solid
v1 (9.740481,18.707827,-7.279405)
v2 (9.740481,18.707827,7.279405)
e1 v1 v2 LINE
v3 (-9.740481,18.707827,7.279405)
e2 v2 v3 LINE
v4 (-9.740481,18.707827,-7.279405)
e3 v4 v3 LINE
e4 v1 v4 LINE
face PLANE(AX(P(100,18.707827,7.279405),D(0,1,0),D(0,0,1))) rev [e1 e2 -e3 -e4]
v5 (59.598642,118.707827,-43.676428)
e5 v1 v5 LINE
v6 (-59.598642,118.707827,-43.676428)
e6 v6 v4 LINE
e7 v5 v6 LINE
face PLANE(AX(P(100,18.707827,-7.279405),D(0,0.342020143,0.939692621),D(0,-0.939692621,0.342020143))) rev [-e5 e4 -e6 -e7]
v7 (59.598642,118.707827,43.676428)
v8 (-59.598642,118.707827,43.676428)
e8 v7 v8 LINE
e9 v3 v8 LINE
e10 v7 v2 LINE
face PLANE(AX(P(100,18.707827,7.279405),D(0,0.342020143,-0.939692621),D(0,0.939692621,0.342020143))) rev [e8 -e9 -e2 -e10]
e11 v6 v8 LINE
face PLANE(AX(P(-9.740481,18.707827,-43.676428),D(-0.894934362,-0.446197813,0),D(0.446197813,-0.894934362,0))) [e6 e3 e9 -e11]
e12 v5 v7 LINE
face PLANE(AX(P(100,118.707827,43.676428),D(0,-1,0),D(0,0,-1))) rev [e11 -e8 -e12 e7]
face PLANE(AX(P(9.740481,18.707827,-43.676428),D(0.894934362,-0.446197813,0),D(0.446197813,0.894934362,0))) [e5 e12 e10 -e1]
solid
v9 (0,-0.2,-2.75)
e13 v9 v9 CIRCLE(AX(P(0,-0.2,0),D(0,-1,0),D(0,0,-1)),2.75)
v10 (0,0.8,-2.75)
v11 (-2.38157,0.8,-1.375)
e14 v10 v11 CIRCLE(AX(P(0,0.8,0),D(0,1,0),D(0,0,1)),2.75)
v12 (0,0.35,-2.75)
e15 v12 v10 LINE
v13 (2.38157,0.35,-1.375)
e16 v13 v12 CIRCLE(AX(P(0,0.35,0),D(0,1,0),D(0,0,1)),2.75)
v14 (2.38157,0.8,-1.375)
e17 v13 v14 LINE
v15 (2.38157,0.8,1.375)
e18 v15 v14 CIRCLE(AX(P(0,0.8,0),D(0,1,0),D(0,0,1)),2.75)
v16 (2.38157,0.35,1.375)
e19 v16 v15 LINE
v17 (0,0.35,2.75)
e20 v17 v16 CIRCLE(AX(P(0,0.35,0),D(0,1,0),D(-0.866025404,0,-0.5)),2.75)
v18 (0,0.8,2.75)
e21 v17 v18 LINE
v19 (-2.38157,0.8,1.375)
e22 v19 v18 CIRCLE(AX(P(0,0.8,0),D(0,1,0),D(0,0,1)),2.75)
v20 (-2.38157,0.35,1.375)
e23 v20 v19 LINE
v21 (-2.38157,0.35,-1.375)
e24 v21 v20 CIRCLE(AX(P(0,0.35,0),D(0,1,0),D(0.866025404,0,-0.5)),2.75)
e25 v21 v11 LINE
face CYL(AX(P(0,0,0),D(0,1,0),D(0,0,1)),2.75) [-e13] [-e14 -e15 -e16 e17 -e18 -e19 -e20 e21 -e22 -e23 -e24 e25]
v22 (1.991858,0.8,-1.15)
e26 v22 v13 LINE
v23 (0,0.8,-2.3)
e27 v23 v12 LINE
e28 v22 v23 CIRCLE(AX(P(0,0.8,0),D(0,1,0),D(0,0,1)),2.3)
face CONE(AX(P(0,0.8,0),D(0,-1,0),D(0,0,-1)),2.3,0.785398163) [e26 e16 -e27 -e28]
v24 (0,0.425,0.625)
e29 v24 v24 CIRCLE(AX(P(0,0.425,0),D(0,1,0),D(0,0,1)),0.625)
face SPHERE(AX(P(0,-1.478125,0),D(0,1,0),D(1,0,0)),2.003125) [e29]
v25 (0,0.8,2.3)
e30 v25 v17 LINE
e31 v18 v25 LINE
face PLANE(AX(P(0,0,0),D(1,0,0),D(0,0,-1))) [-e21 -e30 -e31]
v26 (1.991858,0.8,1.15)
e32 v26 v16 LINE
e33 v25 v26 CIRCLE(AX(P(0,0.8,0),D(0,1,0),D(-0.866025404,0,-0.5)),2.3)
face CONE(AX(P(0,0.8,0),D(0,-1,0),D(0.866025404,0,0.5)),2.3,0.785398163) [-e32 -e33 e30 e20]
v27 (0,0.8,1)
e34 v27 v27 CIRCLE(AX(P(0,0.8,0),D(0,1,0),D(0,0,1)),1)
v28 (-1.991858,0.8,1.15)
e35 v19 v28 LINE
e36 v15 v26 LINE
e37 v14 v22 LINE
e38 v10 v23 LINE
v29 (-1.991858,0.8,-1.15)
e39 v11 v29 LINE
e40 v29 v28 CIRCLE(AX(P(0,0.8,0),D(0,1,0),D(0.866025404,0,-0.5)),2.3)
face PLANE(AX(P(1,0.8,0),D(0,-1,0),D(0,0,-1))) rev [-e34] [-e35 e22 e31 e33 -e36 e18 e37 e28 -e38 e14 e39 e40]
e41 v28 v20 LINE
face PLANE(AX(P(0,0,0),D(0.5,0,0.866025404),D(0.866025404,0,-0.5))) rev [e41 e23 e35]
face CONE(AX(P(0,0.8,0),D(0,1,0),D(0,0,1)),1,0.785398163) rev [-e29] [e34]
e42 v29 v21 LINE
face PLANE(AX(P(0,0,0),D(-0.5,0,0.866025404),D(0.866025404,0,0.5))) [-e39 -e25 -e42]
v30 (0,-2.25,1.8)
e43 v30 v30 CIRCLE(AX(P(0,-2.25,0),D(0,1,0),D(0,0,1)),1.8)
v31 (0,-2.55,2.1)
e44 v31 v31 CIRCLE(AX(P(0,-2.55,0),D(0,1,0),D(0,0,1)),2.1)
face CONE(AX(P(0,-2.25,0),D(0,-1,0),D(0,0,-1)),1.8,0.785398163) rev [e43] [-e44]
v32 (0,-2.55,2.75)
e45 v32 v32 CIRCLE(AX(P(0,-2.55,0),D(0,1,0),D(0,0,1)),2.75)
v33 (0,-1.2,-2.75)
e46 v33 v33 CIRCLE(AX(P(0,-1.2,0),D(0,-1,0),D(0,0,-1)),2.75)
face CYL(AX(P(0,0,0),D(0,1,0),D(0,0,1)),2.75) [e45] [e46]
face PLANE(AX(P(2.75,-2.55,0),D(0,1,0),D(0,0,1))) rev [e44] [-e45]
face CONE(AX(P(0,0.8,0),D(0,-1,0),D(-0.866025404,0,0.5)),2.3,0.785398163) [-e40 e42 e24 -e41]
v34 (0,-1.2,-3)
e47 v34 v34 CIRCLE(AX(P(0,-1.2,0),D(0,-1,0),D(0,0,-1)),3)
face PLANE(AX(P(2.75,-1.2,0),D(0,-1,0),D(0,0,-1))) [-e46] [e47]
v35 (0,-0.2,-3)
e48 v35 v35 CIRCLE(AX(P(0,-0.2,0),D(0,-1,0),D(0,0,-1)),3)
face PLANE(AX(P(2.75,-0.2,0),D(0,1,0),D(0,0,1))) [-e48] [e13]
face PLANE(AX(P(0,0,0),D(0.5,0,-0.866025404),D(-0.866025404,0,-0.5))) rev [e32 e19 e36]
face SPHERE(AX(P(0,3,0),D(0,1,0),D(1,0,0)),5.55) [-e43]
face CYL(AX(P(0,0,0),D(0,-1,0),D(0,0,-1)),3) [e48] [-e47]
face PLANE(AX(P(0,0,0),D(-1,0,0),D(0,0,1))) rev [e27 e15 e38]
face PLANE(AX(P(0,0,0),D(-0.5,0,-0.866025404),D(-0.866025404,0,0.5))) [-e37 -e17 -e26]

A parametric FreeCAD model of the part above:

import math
import FreeCAD as App
import Part
import Sketcher
from FreeCAD import Vector
Q = App.Units.Quantity


def add_polygon(sketch, points):
    """Adds a closed chain of lines whose ends are joined by coincident constraints."""
    first, n = sketch.GeometryCount, len(points)
    for a, b in zip(points, points[1:] + points[:1]):
        sketch.addGeometry(Part.LineSegment(App.Vector(*a, 0), App.Vector(*b, 0)), False)
    for i in range(n):
        sketch.addConstraint(Sketcher.Constraint("Coincident", first + i, 2, first + (i + 1) % n, 1))

doc = App.newDocument("Part")
params = doc.addObject("Spreadsheet::Sheet", "Params")
for row, (alias, value) in enumerate([
    ("sketch1_radius", "5.55 mm"),
    ("sketch1_width", "1.75 mm"),
    ("sketch1_width2", "0.65 mm"),
    ("sketch1_height", "3.35 mm"),
    ("revolution_angle", "360 deg"),
    ("sketch2_height", "1 mm"),
    ("sketch2_width", "0.25 mm"),
    ("revolution2_angle", "360 deg"),
    ("sketch3_width", "0.45 mm"),
    ("groove_angle", "60 deg"),
    ("pad1_length", "200 mm"),
    ("sketch5_diameter", "10 mm"),
], start=1):
    params.set(f"A{row}", alias)
    params.set(f"B{row}", "=" + value)
    params.setAlias(f"B{row}", alias)

body = doc.addObject("PartDesign::Body", "Body")

# Sketch on XY plane
sketch1 = body.newObject("Sketcher::SketchObject", "Sketch")
sketch1.AttachmentSupport = (doc.getObject("XY_Plane"), [""])
sketch1.MapMode = "FlatFace"
sketch1.addGeometry(Part.LineSegment(Vector(2.75, 0.8, 0), Vector(1, 0.8, 0)), False)
sketch1.addGeometry(Part.LineSegment(Vector(1, 0.8, 0), Vector(0.62, 0.42, 0)), False)
sketch1.addGeometry(Part.ArcOfCircle(Part.Circle(Vector(0, -1.48, 0), Vector(0, 0, 1), 2), math.radians(71.82), math.radians(90)), False)
sketch1.addGeometry(Part.LineSegment(Vector(0, 0.53, 0), Vector(0, -2.55, 0)), False)
sketch1.addGeometry(Part.ArcOfCircle(Part.Circle(Vector(0, 3, 0), Vector(0, 0, 1), 5.55), math.radians(-90), math.radians(-71.08)), False)
sketch1.addGeometry(Part.LineSegment(Vector(1.8, -2.25, 0), Vector(2.1, -2.55, 0)), False)
sketch1.addGeometry(Part.LineSegment(Vector(2.1, -2.55, 0), Vector(2.75, -2.55, 0)), False)
sketch1.addGeometry(Part.LineSegment(Vector(2.75, -2.55, 0), Vector(2.75, 0.8, 0)), False)
sketch1.addConstraint(Sketcher.Constraint("Coincident", 0, 2, 1, 1))
sketch1.addConstraint(Sketcher.Constraint("Coincident", 1, 2, 2, 1))
sketch1.addConstraint(Sketcher.Constraint("Coincident", 2, 2, 3, 1))
sketch1.addConstraint(Sketcher.Constraint("Coincident", 3, 2, 4, 1))
sketch1.addConstraint(Sketcher.Constraint("Coincident", 4, 2, 5, 1))
sketch1.addConstraint(Sketcher.Constraint("Coincident", 5, 2, 6, 1))
sketch1.addConstraint(Sketcher.Constraint("Coincident", 6, 2, 7, 1))
sketch1.addConstraint(Sketcher.Constraint("Coincident", 7, 2, 0, 1))
sketch1.addConstraint(Sketcher.Constraint("Horizontal", 0))
sketch1.addConstraint(Sketcher.Constraint("Vertical", 3))
sketch1.addConstraint(Sketcher.Constraint("Horizontal", 6))
sketch1.addConstraint(Sketcher.Constraint("Vertical", 7))
sketch1.addConstraint(Sketcher.Constraint("PointOnObject", 2, 3, -2))
sketch1.addConstraint(Sketcher.Constraint("PointOnObject", 4, 3, -2))
sketch1.addConstraint(Sketcher.Constraint("PointOnObject", 2, 2, -2))
sketch1.addConstraint(Sketcher.Constraint("Perpendicular", 1, 5))
sketch1.addConstraint(Sketcher.Constraint("Horizontal", 3, 2, 5, 2))
sketch1.addConstraint(Sketcher.Constraint("Angle", 1, Q("-135 deg")))
sketch1.addConstraint(Sketcher.Constraint("Radius", 4, Q("5.55 mm")))
sketch1.addConstraint(Sketcher.Constraint("DistanceY", -1, 1, 4, 3, Q("3 mm")))
sketch1.addConstraint(Sketcher.Constraint("DistanceX", -1, 1, 0, 2, Q("1 mm")))
sketch1.addConstraint(Sketcher.Constraint("DistanceX", 0, 2, 0, 1, Q("1.75 mm")))
sketch1.addConstraint(Sketcher.Constraint("DistanceX", 6, 1, 6, 2, Q("0.65 mm")))
sketch1.addConstraint(Sketcher.Constraint("DistanceY", 7, 1, 7, 2, Q("3.35 mm")))
sketch1.addConstraint(Sketcher.Constraint("DistanceY", 1, 2, 2, 2, Q("0.1 mm")))
sketch1.addConstraint(Sketcher.Constraint("DistanceY", 3, 2, 3, 1, Q("3.075 mm")))
sketch1.setExpression("Constraints[18]", "Params.sketch1_radius")
sketch1.setExpression("Constraints[21]", "Params.sketch1_width")
sketch1.setExpression("Constraints[22]", "Params.sketch1_width2")
sketch1.setExpression("Constraints[23]", "Params.sketch1_height")
revolution = body.newObject("PartDesign::Revolution", "Revolution")
revolution.Profile = sketch1
revolution.ReferenceAxis = (sketch1, ["V_Axis"])
revolution.setExpression("Angle", "Params.revolution_angle")

# Sketch on XY plane
sketch2 = body.newObject("Sketcher::SketchObject", "Sketch001")
sketch2.AttachmentSupport = (doc.getObject("XY_Plane"), [""])
sketch2.MapMode = "FlatFace"
add_polygon(sketch2, [(2.75, -0.2), (2.75, -1.2), (3, -1.2), (3, -0.2)])  # lines 0-3
sketch2.addConstraint(Sketcher.Constraint("Vertical", 0))
sketch2.addConstraint(Sketcher.Constraint("Horizontal", 1))
sketch2.addConstraint(Sketcher.Constraint("Vertical", 2))
sketch2.addConstraint(Sketcher.Constraint("Horizontal", 3))
sketch2.addConstraint(Sketcher.Constraint("DistanceY", 0, 2, 0, 1, Q("1 mm")))
sketch2.addConstraint(Sketcher.Constraint("DistanceX", -1, 1, 1, 2, Q("3 mm")))
sketch2.addConstraint(Sketcher.Constraint("DistanceX", 1, 1, 1, 2, Q("0.25 mm")))
sketch2.addConstraint(Sketcher.Constraint("DistanceY", 0, 2, -1, 1, Q("1.2 mm")))
sketch2.setExpression("Constraints[8]", "Params.sketch2_height")
sketch2.setExpression("Constraints[10]", "Params.sketch2_width")
revolution2 = body.newObject("PartDesign::Revolution", "Revolution001")
revolution2.Profile = sketch2
revolution2.ReferenceAxis = (sketch2, ["V_Axis"])
revolution2.setExpression("Angle", "Params.revolution2_angle")

# Sketch on YZ plane
sketch3 = body.newObject("Sketcher::SketchObject", "Sketch002")
sketch3.AttachmentSupport = (doc.getObject("YZ_Plane"), [""])
sketch3.MapMode = "FlatFace"
add_polygon(sketch3, [(0.35, -2.75), (0.8, -2.75), (0.8, -2.3)])  # lines 0-2
sketch3.addConstraint(Sketcher.Constraint("Horizontal", 0))
sketch3.addConstraint(Sketcher.Constraint("Vertical", 1))
sketch3.addConstraint(Sketcher.Constraint("Equal", 0, 1))
sketch3.addConstraint(Sketcher.Constraint("DistanceX", 0, 1, 0, 2, Q("0.45 mm")))
sketch3.addConstraint(Sketcher.Constraint("DistanceX", -1, 1, 0, 2, Q("0.8 mm")))
sketch3.addConstraint(Sketcher.Constraint("DistanceY", 1, 2, -1, 1, Q("2.3 mm")))
sketch3.setExpression("Constraints[6]", "Params.sketch3_width")
groove = body.newObject("PartDesign::Groove", "Groove")
groove.Profile = sketch3
groove.ReferenceAxis = (sketch3, ["H_Axis"])
groove.setExpression("Angle", "Params.groove_angle")
groove.Reversed = True
doc.recompute()

polarpattern = body.newObject("PartDesign::PolarPattern", "PolarPattern")
polarpattern.Originals = [groove]
polarpattern.Axis = (doc.getObject("Y_Axis"), [""])
polarpattern.Angle = 360
polarpattern.Occurrences = 3
body.Tip = polarpattern
body2 = doc.addObject("PartDesign::Body", "Body001")

# Sketch on YZ plane
sketch4 = body2.newObject("Sketcher::SketchObject", "Sketch003")
sketch4.AttachmentSupport = (doc.getObject("YZ_Plane001"), [""])
sketch4.MapMode = "FlatFace"
add_polygon(sketch4, [(119, 44), (19, 7), (19, -7), (119, -44)])  # lines 0-3
sketch4.addConstraint(Sketcher.Constraint("Vertical", 1))
sketch4.addConstraint(Sketcher.Constraint("Vertical", 3))
sketch4.addConstraint(Sketcher.Constraint("Equal", 0, 2))
sketch4.addConstraint(Sketcher.Constraint("Angle", 0, Q("-160 deg")))
sketch4.addConstraint(Sketcher.Constraint("DistanceX", 1, 2, 2, 2, Q("100 mm")))
sketch4.addConstraint(Sketcher.Constraint("DistanceY", 1, 2, 1, 1, Q("14.558809 mm")))
sketch4.addConstraint(Sketcher.Constraint("DistanceY", 2, 2, -1, 1, Q("43.676428 mm")))
sketch4.addConstraint(Sketcher.Constraint("DistanceX", -1, 1, 0, 2, Q("18.707827 mm")))
pad1 = body2.newObject("PartDesign::Pad", "Pad")
pad1.Profile = sketch4
pad1.setExpression("Length", "Params.pad1_length")
pad1.Midplane = True

# Sketch on XY plane
sketch5 = body2.newObject("Sketcher::SketchObject", "Sketch004")
sketch5.AttachmentSupport = (doc.getObject("XY_Plane001"), [""])
sketch5.MapMode = "FlatFace"
add_polygon(sketch5, [(-126, 145), (-126, -29), (126, -29), (126, 145)])  # lines 0-3
sketch5.addGeometry(Part.Circle(Vector(0, 0, 0), Vector(0, 0, 1), 5), False)  # 4
add_polygon(sketch5, [(10, 19), (-10, 19), (-60, 119), (60, 119)])  # lines 5-8
sketch5.addConstraint(Sketcher.Constraint("Vertical", 0))
sketch5.addConstraint(Sketcher.Constraint("Horizontal", 1))
sketch5.addConstraint(Sketcher.Constraint("Vertical", 2))
sketch5.addConstraint(Sketcher.Constraint("Horizontal", 3))
sketch5.addConstraint(Sketcher.Constraint("Horizontal", 5))
sketch5.addConstraint(Sketcher.Constraint("Horizontal", 7))
sketch5.addConstraint(Sketcher.Constraint("Coincident", 4, 3, -1, 1))
sketch5.addConstraint(Sketcher.Constraint("Equal", 6, 8))
sketch5.addConstraint(Sketcher.Constraint("Diameter", 4, Q("10 mm")))
sketch5.addConstraint(Sketcher.Constraint("Angle", 6, Q("116.5 deg")))
sketch5.addConstraint(Sketcher.Constraint("DistanceY", 5, 2, 6, 2, Q("100 mm")))
sketch5.addConstraint(Sketcher.Constraint("DistanceX", 1, 1, 1, 2, Q("251.934 mm")))
sketch5.addConstraint(Sketcher.Constraint("DistanceY", 0, 2, 0, 1, Q("173.192 mm")))
sketch5.addConstraint(Sketcher.Constraint("DistanceX", 0, 2, -1, 1, Q("125.967 mm")))
sketch5.addConstraint(Sketcher.Constraint("DistanceY", 0, 2, -1, 1, Q("28.517 mm")))
sketch5.addConstraint(Sketcher.Constraint("DistanceX", 5, 2, 5, 1, Q("19.480962 mm")))
sketch5.addConstraint(Sketcher.Constraint("DistanceX", 5, 2, -1, 1, Q("9.740481 mm")))
sketch5.addConstraint(Sketcher.Constraint("DistanceY", -1, 1, 5, 2, Q("18.707827 mm")))
sketch5.setExpression("Constraints[16]", "Params.sketch5_diameter")
pocket1 = body2.newObject("PartDesign::Pocket", "Pocket")
pocket1.Profile = sketch5
pocket1.Type = "ThroughAll"
pocket1.Midplane = True

doc.recompute()
